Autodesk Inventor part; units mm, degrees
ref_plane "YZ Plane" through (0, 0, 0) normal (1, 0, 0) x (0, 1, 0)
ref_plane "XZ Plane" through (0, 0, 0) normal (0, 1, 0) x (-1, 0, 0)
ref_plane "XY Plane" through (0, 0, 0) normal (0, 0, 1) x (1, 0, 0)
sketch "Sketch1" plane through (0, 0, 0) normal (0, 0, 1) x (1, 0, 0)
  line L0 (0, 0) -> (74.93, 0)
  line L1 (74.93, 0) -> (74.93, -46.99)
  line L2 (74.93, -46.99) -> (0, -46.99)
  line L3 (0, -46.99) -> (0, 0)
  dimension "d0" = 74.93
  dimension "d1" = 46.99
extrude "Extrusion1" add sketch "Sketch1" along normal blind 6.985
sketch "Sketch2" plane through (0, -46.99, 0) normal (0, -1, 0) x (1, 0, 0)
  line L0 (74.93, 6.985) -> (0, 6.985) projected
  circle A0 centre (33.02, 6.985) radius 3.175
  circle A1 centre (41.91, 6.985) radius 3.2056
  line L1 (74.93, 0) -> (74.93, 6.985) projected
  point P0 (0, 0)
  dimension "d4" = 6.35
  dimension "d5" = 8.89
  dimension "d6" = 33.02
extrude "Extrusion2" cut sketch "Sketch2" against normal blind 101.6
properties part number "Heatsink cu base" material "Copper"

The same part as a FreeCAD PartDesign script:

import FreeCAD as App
import Part
import Sketcher
from FreeCAD import Vector
Q = App.Units.Quantity

doc = App.newDocument("Part")
body = doc.addObject("PartDesign::Body", "Body")

# Sketch on XY plane
sketch1 = body.newObject("Sketcher::SketchObject", "Sketch")
sketch1.AttachmentSupport = (doc.getObject("XY_Plane"), [""])
sketch1.MapMode = "FlatFace"
sketch1.addGeometry([
    Part.LineSegment(Vector(75, 0, 0), Vector(0, 0, 0)),
    Part.LineSegment(Vector(0, 0, 0), Vector(0, -47, 0)),
    Part.LineSegment(Vector(0, -47, 0), Vector(75, -47, 0)),
    Part.LineSegment(Vector(75, -47, 0), Vector(75, 0, 0)),
], False)
sketch1.addConstraint([
    Sketcher.Constraint("Coincident", 0, 2, 1, 1),
    Sketcher.Constraint("Coincident", 1, 2, 2, 1),
    Sketcher.Constraint("Coincident", 2, 2, 3, 1),
    Sketcher.Constraint("Coincident", 3, 2, 0, 1),
    Sketcher.Constraint("Horizontal", 0),
    Sketcher.Constraint("Vertical", 1),
    Sketcher.Constraint("Horizontal", 2),
    Sketcher.Constraint("Vertical", 3),
    Sketcher.Constraint("Coincident", 0, 2, -1, 1),
    Sketcher.Constraint("DistanceX", 0, 2, 0, 1, Q("2.95 in")),
    Sketcher.Constraint("DistanceY", 1, 2, 1, 1, Q("1.85 in")),
])
pad1 = body.newObject("PartDesign::Pad", "Pad")
pad1.Profile = sketch1
pad1.Length = Q("0.275 in")

# Sketch on XZ plane
sketch2 = body.newObject("Sketcher::SketchObject", "Sketch001")
sketch2.AttachmentSupport = (doc.getObject("XZ_Plane"), [""])
sketch2.MapMode = "FlatFace"
sketch2.AttachmentOffset = App.Placement(Vector(0, 0, 1.85 * 25.4), App.Rotation())
sketch2.addGeometry([
    Part.Circle(Vector(41.9, 7, 0), Vector(0, 0, 1), 3.2),
    Part.Circle(Vector(33, 7, 0), Vector(0, 0, 1), 3.2),
], False)
sketch2.addConstraint([
    Sketcher.Constraint("Horizontal", 0, 3, 1, 3),
    Sketcher.Constraint("Diameter", 1, Q("0.25 in")),
    Sketcher.Constraint("DistanceX", -1, 1, 1, 3, Q("1.3 in")),
    Sketcher.Constraint("DistanceX", 1, 3, 0, 3, Q("0.35 in")),
    Sketcher.Constraint("Diameter", 0, Q("0.2524 in")),
    Sketcher.Constraint("DistanceY", -1, 1, 0, 3, Q("0.275 in")),
])
pocket1 = body.newObject("PartDesign::Pocket", "Pocket")
pocket1.Profile = sketch2
pocket1.Length = Q("4 in")

doc.recompute()
